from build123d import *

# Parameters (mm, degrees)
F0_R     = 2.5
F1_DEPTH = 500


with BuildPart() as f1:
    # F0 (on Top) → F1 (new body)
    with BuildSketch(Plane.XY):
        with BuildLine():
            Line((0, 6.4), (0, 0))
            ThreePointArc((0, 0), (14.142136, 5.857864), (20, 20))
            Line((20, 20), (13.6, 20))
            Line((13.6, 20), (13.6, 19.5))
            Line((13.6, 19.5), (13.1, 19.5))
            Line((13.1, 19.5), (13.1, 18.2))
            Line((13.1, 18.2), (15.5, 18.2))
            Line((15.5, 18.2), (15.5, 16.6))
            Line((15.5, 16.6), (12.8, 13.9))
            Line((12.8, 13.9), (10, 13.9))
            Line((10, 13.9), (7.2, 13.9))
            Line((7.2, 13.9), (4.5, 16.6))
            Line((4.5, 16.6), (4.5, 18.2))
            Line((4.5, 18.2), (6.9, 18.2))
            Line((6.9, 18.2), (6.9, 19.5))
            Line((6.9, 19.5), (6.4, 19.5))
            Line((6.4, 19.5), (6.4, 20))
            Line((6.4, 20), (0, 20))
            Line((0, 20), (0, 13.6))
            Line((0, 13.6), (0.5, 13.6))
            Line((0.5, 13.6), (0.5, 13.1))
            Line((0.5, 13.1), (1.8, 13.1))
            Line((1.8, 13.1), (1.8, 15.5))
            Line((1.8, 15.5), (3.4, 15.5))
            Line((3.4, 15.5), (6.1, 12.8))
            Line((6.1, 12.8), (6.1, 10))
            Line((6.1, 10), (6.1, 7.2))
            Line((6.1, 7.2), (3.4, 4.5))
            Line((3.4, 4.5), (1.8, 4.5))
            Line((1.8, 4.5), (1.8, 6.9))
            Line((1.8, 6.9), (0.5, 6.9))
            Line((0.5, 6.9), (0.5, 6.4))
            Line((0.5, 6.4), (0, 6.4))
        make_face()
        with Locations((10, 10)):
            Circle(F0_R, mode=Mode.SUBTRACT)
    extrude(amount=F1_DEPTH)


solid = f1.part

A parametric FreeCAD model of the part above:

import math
import FreeCAD as App
import Part
import Sketcher
Q = App.Units.Quantity

doc = App.newDocument("Part")
body = doc.addObject("PartDesign::Body", "Body")

sketch1 = body.newObject("Sketcher::SketchObject", "Sketch")
sketch1.AttachmentSupport = (doc.getObject("XY_Plane"), [""])
sketch1.MapMode = "FlatFace"
sketch1.addGeometry([
    Part.LineSegment(App.Vector(0, 6.4, 0), App.Vector(0, 0, 0)),
    Part.ArcOfCircle(Part.Circle(App.Vector(0, 20, 0), App.Vector(0, 0, 1), 20), math.radians(-90), math.radians(0)),
    Part.LineSegment(App.Vector(20, 20, 0), App.Vector(13.6, 20, 0)),
    Part.LineSegment(App.Vector(13.6, 20, 0), App.Vector(13.6, 19.5, 0)),
    Part.LineSegment(App.Vector(13.6, 19.5, 0), App.Vector(13.1, 19.5, 0)),
    Part.LineSegment(App.Vector(13.1, 19.5, 0), App.Vector(13.1, 18.2, 0)),
    Part.LineSegment(App.Vector(13.1, 18.2, 0), App.Vector(15.5, 18.2, 0)),
    Part.LineSegment(App.Vector(15.5, 18.2, 0), App.Vector(15.5, 16.6, 0)),
    Part.LineSegment(App.Vector(15.5, 16.6, 0), App.Vector(12.8, 13.9, 0)),
    Part.LineSegment(App.Vector(12.8, 13.9, 0), App.Vector(7.2, 13.9, 0)),
    Part.LineSegment(App.Vector(7.2, 13.9, 0), App.Vector(4.5, 16.6, 0)),
    Part.LineSegment(App.Vector(4.5, 16.6, 0), App.Vector(4.5, 18.2, 0)),
    Part.LineSegment(App.Vector(4.5, 18.2, 0), App.Vector(6.9, 18.2, 0)),
    Part.LineSegment(App.Vector(6.9, 18.2, 0), App.Vector(6.9, 19.5, 0)),
    Part.LineSegment(App.Vector(6.9, 19.5, 0), App.Vector(6.4, 19.5, 0)),
    Part.LineSegment(App.Vector(6.4, 19.5, 0), App.Vector(6.4, 20, 0)),
    Part.LineSegment(App.Vector(6.4, 20, 0), App.Vector(0, 20, 0)),
    Part.LineSegment(App.Vector(0, 20, 0), App.Vector(0, 13.6, 0)),
    Part.LineSegment(App.Vector(0, 13.6, 0), App.Vector(0.5, 13.6, 0)),
    Part.LineSegment(App.Vector(0.5, 13.6, 0), App.Vector(0.5, 13.1, 0)),
    Part.LineSegment(App.Vector(0.5, 13.1, 0), App.Vector(1.8, 13.1, 0)),
    Part.LineSegment(App.Vector(1.8, 13.1, 0), App.Vector(1.8, 15.5, 0)),
    Part.LineSegment(App.Vector(1.8, 15.5, 0), App.Vector(3.4, 15.5, 0)),
    Part.LineSegment(App.Vector(3.4, 15.5, 0), App.Vector(6.1, 12.8, 0)),
    Part.LineSegment(App.Vector(6.1, 12.8, 0), App.Vector(6.1, 7.2, 0)),
    Part.LineSegment(App.Vector(6.1, 7.2, 0), App.Vector(3.4, 4.5, 0)),
    Part.LineSegment(App.Vector(3.4, 4.5, 0), App.Vector(1.8, 4.5, 0)),
    Part.LineSegment(App.Vector(1.8, 4.5, 0), App.Vector(1.8, 6.9, 0)),
    Part.LineSegment(App.Vector(1.8, 6.9, 0), App.Vector(0.5, 6.9, 0)),
    Part.LineSegment(App.Vector(0.5, 6.9, 0), App.Vector(0.5, 6.4, 0)),
    Part.LineSegment(App.Vector(0.5, 6.4, 0), App.Vector(0, 6.4, 0)),
    Part.Circle(App.Vector(10, 10, 0), App.Vector(0, 0, 1), 2.5),
], False)
sketch1.addConstraint([
    Sketcher.Constraint("Coincident", 0, 2, 1, 1),
    Sketcher.Constraint("Coincident", 1, 2, 2, 1),
    Sketcher.Constraint("Coincident", 2, 2, 3, 1),
    Sketcher.Constraint("Coincident", 3, 2, 4, 1),
    Sketcher.Constraint("Coincident", 4, 2, 5, 1),
    Sketcher.Constraint("Coincident", 5, 2, 6, 1),
    Sketcher.Constraint("Coincident", 6, 2, 7, 1),
    Sketcher.Constraint("Coincident", 7, 2, 8, 1),
    Sketcher.Constraint("Coincident", 8, 2, 9, 1),
    Sketcher.Constraint("Coincident", 9, 2, 10, 1),
    Sketcher.Constraint("Coincident", 10, 2, 11, 1),
    Sketcher.Constraint("Coincident", 11, 2, 12, 1),
    Sketcher.Constraint("Coincident", 12, 2, 13, 1),
    Sketcher.Constraint("Coincident", 13, 2, 14, 1),
    Sketcher.Constraint("Coincident", 14, 2, 15, 1),
    Sketcher.Constraint("Coincident", 15, 2, 16, 1),
    Sketcher.Constraint("Coincident", 16, 2, 17, 1),
    Sketcher.Constraint("Coincident", 17, 2, 18, 1),
    Sketcher.Constraint("Coincident", 18, 2, 19, 1),
    Sketcher.Constraint("Coincident", 19, 2, 20, 1),
    Sketcher.Constraint("Coincident", 20, 2, 21, 1),
    Sketcher.Constraint("Coincident", 21, 2, 22, 1),
    Sketcher.Constraint("Coincident", 22, 2, 23, 1),
    Sketcher.Constraint("Coincident", 23, 2, 24, 1),
    Sketcher.Constraint("Coincident", 24, 2, 25, 1),
    Sketcher.Constraint("Coincident", 25, 2, 26, 1),
    Sketcher.Constraint("Coincident", 26, 2, 27, 1),
    Sketcher.Constraint("Coincident", 27, 2, 28, 1),
    Sketcher.Constraint("Coincident", 28, 2, 29, 1),
    Sketcher.Constraint("Coincident", 29, 2, 30, 1),
    Sketcher.Constraint("Coincident", 30, 2, 0, 1),
    Sketcher.Constraint("Vertical", 0),
    Sketcher.Constraint("Horizontal", 2),
    Sketcher.Constraint("Vertical", 3),
    Sketcher.Constraint("Horizontal", 4),
    Sketcher.Constraint("Vertical", 5),
    Sketcher.Constraint("Horizontal", 6),
    Sketcher.Constraint("Vertical", 7),
    Sketcher.Constraint("Horizontal", 9),
    Sketcher.Constraint("Vertical", 11),
    Sketcher.Constraint("Horizontal", 12),
    Sketcher.Constraint("Vertical", 13),
    Sketcher.Constraint("Horizontal", 14),
    Sketcher.Constraint("Vertical", 15),
    Sketcher.Constraint("Horizontal", 16),
    Sketcher.Constraint("Vertical", 17),
    Sketcher.Constraint("Horizontal", 18),
    Sketcher.Constraint("Vertical", 19),
    Sketcher.Constraint("Horizontal", 20),
    Sketcher.Constraint("Vertical", 21),
    Sketcher.Constraint("Horizontal", 22),
    Sketcher.Constraint("Vertical", 24),
    Sketcher.Constraint("Horizontal", 26),
    Sketcher.Constraint("Vertical", 27),
    Sketcher.Constraint("Horizontal", 28),
    Sketcher.Constraint("Vertical", 29),
    Sketcher.Constraint("Horizontal", 30),
    Sketcher.Constraint("Coincident", 0, 2, -1, 1),
    Sketcher.Constraint("Coincident", 16, 2, 1, 3),
    Sketcher.Constraint("PointOnObject", 1, 3, -2),
    Sketcher.Constraint("Perpendicular", 8, 10),
    Sketcher.Constraint("Parallel", 10, 23),
    Sketcher.Constraint("Perpendicular", 23, 25),
    Sketcher.Constraint("Horizontal", 7, 2, 10, 2),
    Sketcher.Constraint("Horizontal", 6, 2, 11, 2),
    Sketcher.Constraint("Horizontal", 4, 2, 13, 2),
    Sketcher.Constraint("Horizontal", 2, 2, 15, 2),
    Sketcher.Constraint("Vertical", 22, 2, 25, 2),
    Sketcher.Constraint("Vertical", 21, 2, 26, 2),
    Sketcher.Constraint("Vertical", 19, 2, 28, 2),
    Sketcher.Constraint("Equal", 6, 12),
    Sketcher.Constraint("Equal", 4, 14),
    Sketcher.Constraint("Equal", 2, 16),
    Sketcher.Constraint("Equal", 14, 18),
    Sketcher.Constraint("Equal", 16, 0),
    Sketcher.Constraint("Equal", 30, 3),
    Sketcher.Constraint("Equal", 28, 5),
    Sketcher.Constraint("Equal", 26, 7),
    Sketcher.Constraint("Equal", 0, 17),
    Sketcher.Constraint("Equal", 15, 19),
    Sketcher.Constraint("Equal", 12, 21),
    Sketcher.Constraint("Equal", 9, 24),
    Sketcher.Constraint("Equal", 21, 27),
    Sketcher.Constraint("Equal", 19, 29),
    Sketcher.Constraint("Equal", 8, 10),
    Sketcher.Constraint("Diameter", 31, Q("5 mm")),
    Sketcher.Constraint("Radius", 1, Q("19.999999 mm")),
    Sketcher.Constraint("DistanceX", 2, 2, 2, 1, Q("6.4 mm")),
    Sketcher.Constraint("DistanceX", 4, 2, 4, 1, Q("0.5 mm")),
    Sketcher.Constraint("DistanceX", 6, 1, 6, 2, Q("2.4 mm")),
    Sketcher.Constraint("DistanceX", 9, 2, 9, 1, Q("5.6 mm")),
    Sketcher.Constraint("DistanceX", 20, 1, 20, 2, Q("1.3 mm")),
    Sketcher.Constraint("DistanceX", 22, 1, 22, 2, Q("1.6 mm")),
    Sketcher.Constraint("DistanceX", -1, 1, 31, 3, Q("10 mm")),
    Sketcher.Constraint("DistanceY", -1, 1, 31, 3, Q("10 mm")),
])
pad1 = body.newObject("PartDesign::Pad", "Pad")
pad1.Profile = sketch1
pad1.Length = 500

doc.recompute()
